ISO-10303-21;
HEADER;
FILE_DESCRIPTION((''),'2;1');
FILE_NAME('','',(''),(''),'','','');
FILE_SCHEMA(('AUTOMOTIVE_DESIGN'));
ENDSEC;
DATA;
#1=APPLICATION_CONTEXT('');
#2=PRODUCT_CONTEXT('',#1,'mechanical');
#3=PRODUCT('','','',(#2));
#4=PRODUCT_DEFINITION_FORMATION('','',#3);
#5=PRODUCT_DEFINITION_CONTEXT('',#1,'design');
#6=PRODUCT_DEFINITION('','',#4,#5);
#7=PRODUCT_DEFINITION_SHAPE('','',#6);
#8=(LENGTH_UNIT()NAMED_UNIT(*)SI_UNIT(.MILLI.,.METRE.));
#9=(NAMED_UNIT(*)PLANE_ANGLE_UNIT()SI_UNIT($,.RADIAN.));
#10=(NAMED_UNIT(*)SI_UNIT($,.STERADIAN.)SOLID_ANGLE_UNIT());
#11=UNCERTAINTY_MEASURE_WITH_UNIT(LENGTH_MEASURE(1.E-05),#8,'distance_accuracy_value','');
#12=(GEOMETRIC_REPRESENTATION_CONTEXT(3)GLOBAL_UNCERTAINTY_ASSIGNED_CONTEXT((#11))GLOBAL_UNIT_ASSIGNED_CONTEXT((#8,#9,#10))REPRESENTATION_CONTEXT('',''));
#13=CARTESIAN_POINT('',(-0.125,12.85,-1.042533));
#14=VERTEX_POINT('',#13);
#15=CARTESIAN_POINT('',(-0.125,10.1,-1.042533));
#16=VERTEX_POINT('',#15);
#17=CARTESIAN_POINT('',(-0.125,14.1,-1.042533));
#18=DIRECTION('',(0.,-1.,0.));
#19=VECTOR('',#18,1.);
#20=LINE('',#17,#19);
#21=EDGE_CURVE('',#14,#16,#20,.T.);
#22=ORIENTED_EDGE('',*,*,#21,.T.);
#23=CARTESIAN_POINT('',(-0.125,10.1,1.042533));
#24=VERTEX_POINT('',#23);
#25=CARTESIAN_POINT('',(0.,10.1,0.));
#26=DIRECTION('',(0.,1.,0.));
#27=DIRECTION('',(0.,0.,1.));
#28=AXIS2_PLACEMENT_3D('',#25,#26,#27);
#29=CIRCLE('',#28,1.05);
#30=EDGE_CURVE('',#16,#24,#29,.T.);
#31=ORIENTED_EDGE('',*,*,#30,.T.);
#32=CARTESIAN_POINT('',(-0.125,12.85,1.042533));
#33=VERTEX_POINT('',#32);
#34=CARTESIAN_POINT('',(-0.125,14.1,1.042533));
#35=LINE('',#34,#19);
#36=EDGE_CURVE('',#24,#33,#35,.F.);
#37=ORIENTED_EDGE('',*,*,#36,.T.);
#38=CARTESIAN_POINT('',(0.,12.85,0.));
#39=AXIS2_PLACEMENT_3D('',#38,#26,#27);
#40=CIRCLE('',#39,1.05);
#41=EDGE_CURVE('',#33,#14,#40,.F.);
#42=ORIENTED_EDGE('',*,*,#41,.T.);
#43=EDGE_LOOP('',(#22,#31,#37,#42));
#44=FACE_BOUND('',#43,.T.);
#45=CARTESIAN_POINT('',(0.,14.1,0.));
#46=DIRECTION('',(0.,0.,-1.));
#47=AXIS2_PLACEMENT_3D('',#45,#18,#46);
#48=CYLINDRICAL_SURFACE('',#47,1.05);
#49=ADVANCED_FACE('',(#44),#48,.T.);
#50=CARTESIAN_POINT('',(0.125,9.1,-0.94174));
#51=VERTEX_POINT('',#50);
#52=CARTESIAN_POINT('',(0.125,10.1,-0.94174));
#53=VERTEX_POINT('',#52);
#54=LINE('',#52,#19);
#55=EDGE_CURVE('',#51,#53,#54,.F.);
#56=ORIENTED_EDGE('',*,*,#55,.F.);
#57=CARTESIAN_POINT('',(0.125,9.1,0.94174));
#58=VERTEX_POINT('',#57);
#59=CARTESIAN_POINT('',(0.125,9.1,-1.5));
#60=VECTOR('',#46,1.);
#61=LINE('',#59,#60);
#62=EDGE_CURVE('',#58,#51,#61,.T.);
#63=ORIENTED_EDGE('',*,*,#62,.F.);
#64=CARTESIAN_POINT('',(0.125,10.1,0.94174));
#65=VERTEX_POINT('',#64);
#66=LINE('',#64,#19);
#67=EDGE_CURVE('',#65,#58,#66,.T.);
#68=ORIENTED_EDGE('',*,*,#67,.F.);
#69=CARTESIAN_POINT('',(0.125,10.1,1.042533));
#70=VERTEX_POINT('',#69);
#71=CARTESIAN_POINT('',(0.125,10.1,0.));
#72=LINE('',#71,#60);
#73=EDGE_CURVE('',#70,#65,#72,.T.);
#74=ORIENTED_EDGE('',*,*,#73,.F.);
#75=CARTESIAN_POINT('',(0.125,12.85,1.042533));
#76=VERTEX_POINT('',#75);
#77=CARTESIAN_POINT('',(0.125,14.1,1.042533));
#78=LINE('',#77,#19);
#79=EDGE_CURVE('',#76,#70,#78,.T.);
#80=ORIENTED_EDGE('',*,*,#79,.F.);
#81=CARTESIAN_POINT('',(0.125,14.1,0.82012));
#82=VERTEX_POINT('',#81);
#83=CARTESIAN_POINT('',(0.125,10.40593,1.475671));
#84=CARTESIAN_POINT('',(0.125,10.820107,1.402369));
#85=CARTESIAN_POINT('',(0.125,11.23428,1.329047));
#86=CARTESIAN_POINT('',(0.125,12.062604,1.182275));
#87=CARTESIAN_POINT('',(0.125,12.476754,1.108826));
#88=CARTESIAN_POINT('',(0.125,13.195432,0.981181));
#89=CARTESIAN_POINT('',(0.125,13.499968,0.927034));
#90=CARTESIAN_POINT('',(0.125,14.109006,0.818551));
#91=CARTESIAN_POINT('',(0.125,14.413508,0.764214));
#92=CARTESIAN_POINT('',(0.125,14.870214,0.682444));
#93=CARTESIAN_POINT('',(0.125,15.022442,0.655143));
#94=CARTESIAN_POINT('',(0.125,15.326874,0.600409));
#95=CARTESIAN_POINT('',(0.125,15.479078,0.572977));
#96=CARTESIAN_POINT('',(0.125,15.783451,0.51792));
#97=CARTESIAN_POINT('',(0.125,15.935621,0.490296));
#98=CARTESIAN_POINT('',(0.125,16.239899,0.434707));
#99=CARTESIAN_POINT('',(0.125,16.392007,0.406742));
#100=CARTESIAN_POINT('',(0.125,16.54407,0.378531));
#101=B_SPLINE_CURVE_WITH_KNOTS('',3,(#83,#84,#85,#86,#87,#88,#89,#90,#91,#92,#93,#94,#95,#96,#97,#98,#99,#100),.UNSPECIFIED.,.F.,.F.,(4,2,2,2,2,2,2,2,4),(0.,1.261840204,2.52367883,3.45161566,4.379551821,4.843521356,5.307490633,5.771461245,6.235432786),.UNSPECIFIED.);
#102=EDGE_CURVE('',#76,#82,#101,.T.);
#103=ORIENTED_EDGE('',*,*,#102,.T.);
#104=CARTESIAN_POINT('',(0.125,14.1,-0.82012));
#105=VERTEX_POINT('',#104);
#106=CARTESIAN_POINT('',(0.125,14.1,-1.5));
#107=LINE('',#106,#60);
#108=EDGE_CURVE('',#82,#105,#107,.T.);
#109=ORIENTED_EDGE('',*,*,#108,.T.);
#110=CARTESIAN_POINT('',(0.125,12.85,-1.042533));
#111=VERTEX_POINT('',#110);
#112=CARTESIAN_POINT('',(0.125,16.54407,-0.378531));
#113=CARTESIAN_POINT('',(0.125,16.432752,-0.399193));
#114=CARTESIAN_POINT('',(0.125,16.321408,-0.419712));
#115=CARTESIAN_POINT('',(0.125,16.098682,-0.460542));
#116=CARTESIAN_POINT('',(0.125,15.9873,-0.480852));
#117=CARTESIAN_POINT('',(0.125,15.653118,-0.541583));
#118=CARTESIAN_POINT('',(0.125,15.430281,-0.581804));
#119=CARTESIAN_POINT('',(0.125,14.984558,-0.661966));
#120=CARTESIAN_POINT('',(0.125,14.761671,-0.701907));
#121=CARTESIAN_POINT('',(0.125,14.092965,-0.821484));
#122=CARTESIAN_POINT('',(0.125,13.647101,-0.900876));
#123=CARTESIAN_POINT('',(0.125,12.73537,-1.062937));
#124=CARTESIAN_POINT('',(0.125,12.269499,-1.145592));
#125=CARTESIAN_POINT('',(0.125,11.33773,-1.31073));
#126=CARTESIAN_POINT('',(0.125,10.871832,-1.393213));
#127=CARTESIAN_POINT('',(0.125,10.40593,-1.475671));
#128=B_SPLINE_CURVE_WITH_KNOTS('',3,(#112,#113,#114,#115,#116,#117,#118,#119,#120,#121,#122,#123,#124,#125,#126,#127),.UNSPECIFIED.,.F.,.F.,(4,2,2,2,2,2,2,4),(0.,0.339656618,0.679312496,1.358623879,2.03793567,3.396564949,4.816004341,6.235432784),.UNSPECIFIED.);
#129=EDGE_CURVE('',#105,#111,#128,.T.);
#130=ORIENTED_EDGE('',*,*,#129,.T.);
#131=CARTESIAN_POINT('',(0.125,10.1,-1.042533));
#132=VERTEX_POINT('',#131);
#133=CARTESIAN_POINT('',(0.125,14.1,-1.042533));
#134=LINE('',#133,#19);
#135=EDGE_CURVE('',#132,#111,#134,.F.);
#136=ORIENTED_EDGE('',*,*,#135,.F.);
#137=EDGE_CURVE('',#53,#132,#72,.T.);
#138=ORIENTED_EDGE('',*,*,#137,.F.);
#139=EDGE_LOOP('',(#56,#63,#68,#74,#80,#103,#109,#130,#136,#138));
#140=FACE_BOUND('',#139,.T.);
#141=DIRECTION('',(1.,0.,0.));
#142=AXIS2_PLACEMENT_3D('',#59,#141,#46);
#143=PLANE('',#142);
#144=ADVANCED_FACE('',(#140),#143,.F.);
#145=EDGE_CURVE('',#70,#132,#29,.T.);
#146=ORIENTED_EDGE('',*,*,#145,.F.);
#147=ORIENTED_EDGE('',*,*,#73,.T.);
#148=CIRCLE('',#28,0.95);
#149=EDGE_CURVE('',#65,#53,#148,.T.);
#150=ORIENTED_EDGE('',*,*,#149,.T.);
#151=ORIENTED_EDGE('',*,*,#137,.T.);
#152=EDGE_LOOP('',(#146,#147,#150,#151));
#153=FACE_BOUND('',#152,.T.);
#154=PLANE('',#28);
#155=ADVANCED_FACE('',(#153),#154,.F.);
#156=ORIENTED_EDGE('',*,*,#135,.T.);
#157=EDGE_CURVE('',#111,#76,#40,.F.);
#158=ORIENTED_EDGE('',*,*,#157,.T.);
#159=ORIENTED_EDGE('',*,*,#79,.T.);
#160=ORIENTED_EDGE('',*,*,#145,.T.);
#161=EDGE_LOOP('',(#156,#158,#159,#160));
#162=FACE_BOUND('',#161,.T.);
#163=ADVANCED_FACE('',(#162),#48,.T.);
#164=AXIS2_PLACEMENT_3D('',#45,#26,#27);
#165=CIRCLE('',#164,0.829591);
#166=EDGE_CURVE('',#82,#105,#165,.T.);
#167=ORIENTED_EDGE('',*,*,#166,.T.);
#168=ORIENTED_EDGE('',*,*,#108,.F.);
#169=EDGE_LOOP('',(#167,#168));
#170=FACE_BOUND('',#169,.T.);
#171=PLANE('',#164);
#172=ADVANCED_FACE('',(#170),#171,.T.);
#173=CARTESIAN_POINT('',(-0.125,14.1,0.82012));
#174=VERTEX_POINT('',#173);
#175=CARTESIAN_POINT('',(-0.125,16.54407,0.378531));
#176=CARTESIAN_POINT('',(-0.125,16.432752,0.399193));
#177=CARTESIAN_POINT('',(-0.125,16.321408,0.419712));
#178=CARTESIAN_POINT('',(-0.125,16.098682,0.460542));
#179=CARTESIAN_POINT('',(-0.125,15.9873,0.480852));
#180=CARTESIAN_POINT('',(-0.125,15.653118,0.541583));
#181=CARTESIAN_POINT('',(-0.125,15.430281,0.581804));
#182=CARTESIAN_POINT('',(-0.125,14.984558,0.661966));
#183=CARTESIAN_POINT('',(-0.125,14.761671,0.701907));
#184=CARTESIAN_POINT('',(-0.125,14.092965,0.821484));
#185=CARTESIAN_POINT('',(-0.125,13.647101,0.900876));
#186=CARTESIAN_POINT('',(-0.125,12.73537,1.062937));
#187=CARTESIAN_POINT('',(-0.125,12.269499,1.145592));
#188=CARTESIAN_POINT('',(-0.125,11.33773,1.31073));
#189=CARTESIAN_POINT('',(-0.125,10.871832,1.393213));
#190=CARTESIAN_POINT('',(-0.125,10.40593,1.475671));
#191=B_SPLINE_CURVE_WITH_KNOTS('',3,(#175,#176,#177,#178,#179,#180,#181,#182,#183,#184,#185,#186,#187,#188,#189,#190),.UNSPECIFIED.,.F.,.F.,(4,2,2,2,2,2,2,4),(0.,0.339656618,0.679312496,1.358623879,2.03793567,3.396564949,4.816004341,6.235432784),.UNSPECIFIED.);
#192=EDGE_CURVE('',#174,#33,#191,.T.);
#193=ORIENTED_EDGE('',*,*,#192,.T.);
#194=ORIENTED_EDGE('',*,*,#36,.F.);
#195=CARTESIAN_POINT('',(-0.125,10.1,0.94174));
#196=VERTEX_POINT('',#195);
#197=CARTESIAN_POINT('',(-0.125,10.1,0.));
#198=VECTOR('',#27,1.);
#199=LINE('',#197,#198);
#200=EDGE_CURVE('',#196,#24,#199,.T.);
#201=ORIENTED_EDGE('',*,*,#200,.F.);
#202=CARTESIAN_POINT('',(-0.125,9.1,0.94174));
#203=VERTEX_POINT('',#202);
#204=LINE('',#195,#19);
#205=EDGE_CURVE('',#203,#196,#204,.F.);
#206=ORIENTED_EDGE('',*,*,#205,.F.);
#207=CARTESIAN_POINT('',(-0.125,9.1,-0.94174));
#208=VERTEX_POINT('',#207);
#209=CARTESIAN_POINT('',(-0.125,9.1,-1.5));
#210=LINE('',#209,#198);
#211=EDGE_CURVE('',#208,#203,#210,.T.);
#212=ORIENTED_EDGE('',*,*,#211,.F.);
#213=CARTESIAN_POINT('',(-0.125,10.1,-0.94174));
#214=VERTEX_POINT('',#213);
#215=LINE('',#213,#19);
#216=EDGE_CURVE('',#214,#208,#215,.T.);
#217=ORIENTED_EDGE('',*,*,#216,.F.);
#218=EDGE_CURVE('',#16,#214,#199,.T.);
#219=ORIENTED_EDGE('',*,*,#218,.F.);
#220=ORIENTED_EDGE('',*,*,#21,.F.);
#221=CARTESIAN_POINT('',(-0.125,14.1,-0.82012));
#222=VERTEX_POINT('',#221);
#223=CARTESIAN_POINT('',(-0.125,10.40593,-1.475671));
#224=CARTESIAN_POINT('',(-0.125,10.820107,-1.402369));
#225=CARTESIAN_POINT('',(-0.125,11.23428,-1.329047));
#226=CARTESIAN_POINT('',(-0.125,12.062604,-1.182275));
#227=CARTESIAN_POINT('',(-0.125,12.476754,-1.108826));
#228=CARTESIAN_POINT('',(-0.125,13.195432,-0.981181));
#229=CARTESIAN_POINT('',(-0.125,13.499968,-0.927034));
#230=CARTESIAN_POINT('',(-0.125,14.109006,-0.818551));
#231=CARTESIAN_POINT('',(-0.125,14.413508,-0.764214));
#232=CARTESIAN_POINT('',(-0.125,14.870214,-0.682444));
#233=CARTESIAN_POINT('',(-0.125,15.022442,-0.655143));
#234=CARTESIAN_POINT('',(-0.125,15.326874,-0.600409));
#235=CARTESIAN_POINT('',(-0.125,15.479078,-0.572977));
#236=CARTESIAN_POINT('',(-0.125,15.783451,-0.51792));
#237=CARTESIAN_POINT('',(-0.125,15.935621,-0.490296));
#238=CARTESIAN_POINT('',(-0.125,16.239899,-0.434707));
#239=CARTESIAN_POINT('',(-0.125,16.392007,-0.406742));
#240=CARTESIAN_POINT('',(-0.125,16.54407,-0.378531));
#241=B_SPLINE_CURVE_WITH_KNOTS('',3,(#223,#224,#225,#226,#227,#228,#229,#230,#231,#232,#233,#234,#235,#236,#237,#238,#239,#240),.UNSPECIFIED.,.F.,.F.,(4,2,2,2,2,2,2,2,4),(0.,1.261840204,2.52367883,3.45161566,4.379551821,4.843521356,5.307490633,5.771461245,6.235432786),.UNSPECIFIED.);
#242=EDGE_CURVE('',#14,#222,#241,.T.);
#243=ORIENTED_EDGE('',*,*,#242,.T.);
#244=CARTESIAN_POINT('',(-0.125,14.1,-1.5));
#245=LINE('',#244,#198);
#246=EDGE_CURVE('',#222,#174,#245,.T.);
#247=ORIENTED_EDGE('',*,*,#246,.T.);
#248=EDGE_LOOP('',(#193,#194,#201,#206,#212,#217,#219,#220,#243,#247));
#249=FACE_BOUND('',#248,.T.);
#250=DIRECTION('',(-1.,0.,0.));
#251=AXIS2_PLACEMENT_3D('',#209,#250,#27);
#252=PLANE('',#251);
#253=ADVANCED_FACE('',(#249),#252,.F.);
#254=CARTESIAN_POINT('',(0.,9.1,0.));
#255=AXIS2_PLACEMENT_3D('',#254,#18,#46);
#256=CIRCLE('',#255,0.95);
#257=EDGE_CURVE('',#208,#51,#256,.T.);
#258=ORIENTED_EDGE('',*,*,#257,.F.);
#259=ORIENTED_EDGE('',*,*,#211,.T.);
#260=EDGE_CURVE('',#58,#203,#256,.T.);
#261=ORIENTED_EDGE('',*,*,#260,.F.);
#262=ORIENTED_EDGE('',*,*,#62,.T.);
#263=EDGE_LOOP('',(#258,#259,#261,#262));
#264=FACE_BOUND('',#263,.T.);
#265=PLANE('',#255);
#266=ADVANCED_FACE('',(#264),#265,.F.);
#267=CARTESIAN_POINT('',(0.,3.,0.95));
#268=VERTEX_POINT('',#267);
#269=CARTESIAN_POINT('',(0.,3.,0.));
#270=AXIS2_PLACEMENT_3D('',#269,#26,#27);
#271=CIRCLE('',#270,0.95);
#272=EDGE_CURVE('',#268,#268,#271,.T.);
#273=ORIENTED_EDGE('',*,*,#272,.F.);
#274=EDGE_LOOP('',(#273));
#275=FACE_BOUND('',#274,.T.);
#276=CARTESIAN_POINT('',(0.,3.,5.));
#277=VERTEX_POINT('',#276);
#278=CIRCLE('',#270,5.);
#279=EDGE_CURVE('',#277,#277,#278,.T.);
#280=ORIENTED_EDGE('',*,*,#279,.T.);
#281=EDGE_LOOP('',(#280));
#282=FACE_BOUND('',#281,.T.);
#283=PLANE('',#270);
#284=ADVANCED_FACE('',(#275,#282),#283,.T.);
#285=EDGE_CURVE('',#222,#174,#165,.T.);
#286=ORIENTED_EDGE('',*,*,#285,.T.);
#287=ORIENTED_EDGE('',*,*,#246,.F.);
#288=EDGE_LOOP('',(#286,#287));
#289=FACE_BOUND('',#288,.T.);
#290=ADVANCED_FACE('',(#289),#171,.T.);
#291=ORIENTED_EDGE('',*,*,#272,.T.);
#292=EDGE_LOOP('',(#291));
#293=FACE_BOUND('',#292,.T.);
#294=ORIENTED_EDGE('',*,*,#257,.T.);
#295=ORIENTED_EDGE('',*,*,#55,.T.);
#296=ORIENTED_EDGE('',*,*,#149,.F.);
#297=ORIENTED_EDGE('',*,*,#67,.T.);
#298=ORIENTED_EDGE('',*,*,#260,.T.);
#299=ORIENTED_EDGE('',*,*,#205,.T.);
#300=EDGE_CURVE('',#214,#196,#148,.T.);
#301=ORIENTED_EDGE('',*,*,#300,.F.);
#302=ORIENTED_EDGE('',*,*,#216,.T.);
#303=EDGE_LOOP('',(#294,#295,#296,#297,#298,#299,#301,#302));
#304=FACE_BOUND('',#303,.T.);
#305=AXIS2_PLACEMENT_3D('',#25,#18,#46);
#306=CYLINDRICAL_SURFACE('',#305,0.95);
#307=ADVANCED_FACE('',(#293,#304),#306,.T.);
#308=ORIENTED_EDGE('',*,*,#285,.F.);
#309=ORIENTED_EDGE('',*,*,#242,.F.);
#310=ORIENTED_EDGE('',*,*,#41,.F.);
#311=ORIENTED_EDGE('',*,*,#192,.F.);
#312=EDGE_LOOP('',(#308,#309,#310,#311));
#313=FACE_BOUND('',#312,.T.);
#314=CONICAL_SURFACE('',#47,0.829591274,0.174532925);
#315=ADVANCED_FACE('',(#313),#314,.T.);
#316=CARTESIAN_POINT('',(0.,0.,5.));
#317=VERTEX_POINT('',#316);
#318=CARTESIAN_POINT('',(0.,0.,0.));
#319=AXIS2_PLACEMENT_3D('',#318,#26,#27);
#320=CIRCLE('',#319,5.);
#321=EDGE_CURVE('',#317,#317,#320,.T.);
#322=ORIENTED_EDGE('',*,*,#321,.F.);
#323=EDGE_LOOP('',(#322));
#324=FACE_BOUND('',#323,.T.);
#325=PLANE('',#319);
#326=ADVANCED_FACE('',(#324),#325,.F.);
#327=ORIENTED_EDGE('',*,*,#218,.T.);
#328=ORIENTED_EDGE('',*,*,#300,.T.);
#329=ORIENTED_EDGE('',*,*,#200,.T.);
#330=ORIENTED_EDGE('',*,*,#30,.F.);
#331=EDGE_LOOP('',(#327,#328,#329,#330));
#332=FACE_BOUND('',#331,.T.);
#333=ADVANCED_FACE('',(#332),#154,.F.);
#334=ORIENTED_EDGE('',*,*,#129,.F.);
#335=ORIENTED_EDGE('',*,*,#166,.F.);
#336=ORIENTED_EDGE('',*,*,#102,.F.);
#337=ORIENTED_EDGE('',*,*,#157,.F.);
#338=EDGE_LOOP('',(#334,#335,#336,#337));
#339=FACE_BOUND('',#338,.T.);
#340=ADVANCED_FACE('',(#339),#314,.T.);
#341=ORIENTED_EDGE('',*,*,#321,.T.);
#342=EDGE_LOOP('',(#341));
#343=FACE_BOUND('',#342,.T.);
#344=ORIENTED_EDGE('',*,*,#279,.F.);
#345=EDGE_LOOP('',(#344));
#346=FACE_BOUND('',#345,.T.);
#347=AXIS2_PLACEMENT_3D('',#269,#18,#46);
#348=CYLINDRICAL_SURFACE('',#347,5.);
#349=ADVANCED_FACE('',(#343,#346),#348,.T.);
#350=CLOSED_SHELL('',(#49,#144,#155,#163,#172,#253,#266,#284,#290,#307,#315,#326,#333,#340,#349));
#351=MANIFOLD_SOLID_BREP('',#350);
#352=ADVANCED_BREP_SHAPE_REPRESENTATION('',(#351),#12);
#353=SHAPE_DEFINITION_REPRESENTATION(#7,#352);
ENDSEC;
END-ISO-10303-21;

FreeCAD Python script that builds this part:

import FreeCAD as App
import Part
import Sketcher
from FreeCAD import Vector


def edges_at(feature, points):
    """Names of the edges that pass closest to the given points."""
    edges = feature.Shape.Edges
    near = lambda p: min(range(len(edges)), key=lambda i: edges[i].distToShape(Part.Vertex(*p))[0])
    return sorted({f"Edge{near(p) + 1}" for p in points})

doc = App.newDocument("Part")
body = doc.addObject("PartDesign::Body", "Body")

sketch1 = doc.addObject("Sketcher::SketchObject", "Sketch")
body.addObject(sketch1)
sketch1.AttachmentSupport = (doc.XZ_Plane, [""])
sketch1.MapMode = "FlatFace"
sketch1.addGeometry(Part.Circle(Vector(0, 0, 0), Vector(0, 0, 1), 5), False)
sketch1.addConstraint([
    Sketcher.Constraint("Coincident", 0, 3, -1, 1),
    Sketcher.Constraint("Diameter", 0, 10.0),
])
pad1 = doc.addObject("PartDesign::Pad", "Pad")
body.addObject(pad1)
pad1.Profile = sketch1
pad1.Length = 3
pad1.Reversed = True

sketch2 = doc.addObject("Sketcher::SketchObject", "Sketch001")
body.addObject(sketch2)
sketch2.AttachmentSupport = (doc.XZ_Plane, [""])
sketch2.MapMode = "FlatFace"
sketch2.AttachmentOffset = App.Placement(Vector(0, 0, -3), App.Rotation())
sketch2.addGeometry(Part.Circle(Vector(0, 0, 0), Vector(0, 0, 1), 0.9), False)
sketch2.addConstraint([
    Sketcher.Constraint("Coincident", 0, 3, -1, 1),
    Sketcher.Constraint("Diameter", 0, 1.9),
])
pad2 = doc.addObject("PartDesign::Pad", "Pad001")
body.addObject(pad2)
pad2.Profile = sketch2
pad2.Length = 7.1
pad2.Reversed = True

sketch3 = doc.addObject("Sketcher::SketchObject", "Sketch002")
body.addObject(sketch3)
sketch3.AttachmentSupport = (doc.XZ_Plane, [""])
sketch3.MapMode = "FlatFace"
sketch3.AttachmentOffset = App.Placement(Vector(0, 0, -10.1), App.Rotation())
sketch3.addGeometry(Part.Circle(Vector(0, 0, 0), Vector(0, 0, 1), 1.1), False)
sketch3.addConstraint([
    Sketcher.Constraint("Coincident", 0, 3, -1, 1),
    Sketcher.Constraint("Diameter", 0, 2.1),
])
pad3 = doc.addObject("PartDesign::Pad", "Pad002")
body.addObject(pad3)
pad3.Profile = sketch3
pad3.Length = 4
pad3.Reversed = True
doc.recompute()

chamfer = doc.addObject("PartDesign::Chamfer", "Chamfer")
body.addObject(chamfer)
chamfer.Base = (pad3, edges_at(pad3, [(0, 14.1, -1.05)]))
chamfer.ChamferType = "Two distances"
chamfer.Size = 1.25
chamfer.Size2 = 0.220409

sketch4 = doc.addObject("Sketcher::SketchObject", "Sketch003")
body.addObject(sketch4)
sketch4.AttachmentSupport = (doc.XZ_Plane, [""])
sketch4.MapMode = "FlatFace"
sketch4.AttachmentOffset = App.Placement(Vector(0, 0, -14.1), App.Rotation())
sketch4.addGeometry([
    Part.LineSegment(Vector(-0.12, -1.5, 0), Vector(-0.12, 1.5, 0)),
    Part.LineSegment(Vector(-0.12, 1.5, 0), Vector(0.12, 1.5, 0)),
    Part.LineSegment(Vector(0.12, 1.5, 0), Vector(0.12, -1.5, 0)),
    Part.LineSegment(Vector(0.12, -1.5, 0), Vector(-0.12, -1.5, 0)),
], False)
sketch4.addConstraint([
    Sketcher.Constraint("Coincident", 0, 2, 1, 1),
    Sketcher.Constraint("Coincident", 1, 2, 2, 1),
    Sketcher.Constraint("Coincident", 2, 2, 3, 1),
    Sketcher.Constraint("Coincident", 3, 2, 0, 1),
    Sketcher.Constraint("Vertical", 0),
    Sketcher.Constraint("Horizontal", 1),
    Sketcher.Constraint("Vertical", 2),
    Sketcher.Constraint("Horizontal", 3),
    Sketcher.Constraint("Symmetric", 0, 2, 2, 2, -1, 1),
    Sketcher.Constraint("DistanceY", 0, 1, 0, 2, 3.0),
    Sketcher.Constraint("DistanceX", 1, 1, 1, 2, 0.25),
])
pocket1 = doc.addObject("PartDesign::Pocket", "Pocket")
body.addObject(pocket1)
pocket1.Profile = sketch4
pocket1.Length = 5
pocket1.Reversed = True

doc.recompute()
